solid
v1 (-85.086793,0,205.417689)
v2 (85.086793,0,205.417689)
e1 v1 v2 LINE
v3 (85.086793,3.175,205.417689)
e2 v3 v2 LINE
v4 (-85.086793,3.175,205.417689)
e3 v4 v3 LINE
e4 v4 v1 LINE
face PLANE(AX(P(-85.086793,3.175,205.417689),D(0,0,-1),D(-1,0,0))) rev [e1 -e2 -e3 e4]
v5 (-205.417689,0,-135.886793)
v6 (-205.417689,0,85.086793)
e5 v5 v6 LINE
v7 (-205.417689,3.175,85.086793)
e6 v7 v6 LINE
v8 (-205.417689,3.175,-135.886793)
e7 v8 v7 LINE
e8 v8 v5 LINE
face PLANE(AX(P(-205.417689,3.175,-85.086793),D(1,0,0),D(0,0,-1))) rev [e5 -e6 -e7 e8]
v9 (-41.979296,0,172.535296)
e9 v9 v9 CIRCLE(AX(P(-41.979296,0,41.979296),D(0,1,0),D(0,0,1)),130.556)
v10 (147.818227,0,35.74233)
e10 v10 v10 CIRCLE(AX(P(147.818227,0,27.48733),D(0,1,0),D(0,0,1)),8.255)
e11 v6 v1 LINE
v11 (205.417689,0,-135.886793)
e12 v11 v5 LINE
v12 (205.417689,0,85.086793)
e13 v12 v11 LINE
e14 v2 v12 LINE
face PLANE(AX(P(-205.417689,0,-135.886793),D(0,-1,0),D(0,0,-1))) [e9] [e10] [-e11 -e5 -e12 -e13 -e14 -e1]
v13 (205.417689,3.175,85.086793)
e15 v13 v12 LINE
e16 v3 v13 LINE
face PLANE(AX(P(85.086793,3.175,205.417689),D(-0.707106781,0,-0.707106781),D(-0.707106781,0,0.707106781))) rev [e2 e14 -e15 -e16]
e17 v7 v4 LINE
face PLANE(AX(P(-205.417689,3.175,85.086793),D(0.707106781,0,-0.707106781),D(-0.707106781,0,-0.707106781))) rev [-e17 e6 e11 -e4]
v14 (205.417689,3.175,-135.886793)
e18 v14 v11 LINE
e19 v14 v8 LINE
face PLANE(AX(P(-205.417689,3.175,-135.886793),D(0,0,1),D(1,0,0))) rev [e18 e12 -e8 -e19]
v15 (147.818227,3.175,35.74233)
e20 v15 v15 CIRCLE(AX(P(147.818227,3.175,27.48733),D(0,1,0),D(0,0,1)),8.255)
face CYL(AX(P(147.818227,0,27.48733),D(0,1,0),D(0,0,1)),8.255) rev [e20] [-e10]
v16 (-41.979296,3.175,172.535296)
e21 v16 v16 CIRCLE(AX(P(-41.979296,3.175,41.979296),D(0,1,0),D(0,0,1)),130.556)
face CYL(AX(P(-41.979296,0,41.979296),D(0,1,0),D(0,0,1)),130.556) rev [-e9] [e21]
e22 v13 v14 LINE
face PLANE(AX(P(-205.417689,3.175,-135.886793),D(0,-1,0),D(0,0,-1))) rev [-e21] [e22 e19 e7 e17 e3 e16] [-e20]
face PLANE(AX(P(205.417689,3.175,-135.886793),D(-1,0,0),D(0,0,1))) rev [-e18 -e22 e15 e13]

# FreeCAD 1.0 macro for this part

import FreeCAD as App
import Part
import Sketcher
from FreeCAD import Vector
Q = App.Units.Quantity

doc = App.newDocument("Part")
body = doc.addObject("PartDesign::Body", "Body")

sketch1 = body.newObject("Sketcher::SketchObject", "Sketch")
sketch1.AttachmentSupport = (doc.getObject("XZ_Plane"), [""])
sketch1.MapMode = "FlatFace"
sketch1.addGeometry(Part.LineSegment(Vector(-205.417689, 85.086793, 0), Vector(-85.086793, 205.417689, 0)), False)
sketch1.addGeometry(Part.LineSegment(Vector(-85.086793, 205.417689, 0), Vector(85.086793, 205.417689, 0)), False)
sketch1.addGeometry(Part.LineSegment(Vector(85.086793, 205.417689, 0), Vector(205.417689, 85.086793, 0)), False)
sketch1.addGeometry(Part.LineSegment(Vector(205.417689, 85.086793, 0), Vector(205.417689, -135.886793, 0)), False)
sketch1.addGeometry(Part.LineSegment(Vector(205.417689, -135.886793, 0), Vector(-205.417689, -135.886793, 0)), False)
sketch1.addGeometry(Part.LineSegment(Vector(-205.417689, -135.886793, 0), Vector(-205.417689, 85.086793, 0)), False)
sketch1.addConstraint(Sketcher.Constraint("Coincident", 0, 2, 1, 1))
sketch1.addConstraint(Sketcher.Constraint("Coincident", 1, 2, 2, 1))
sketch1.addConstraint(Sketcher.Constraint("Coincident", 2, 2, 3, 1))
sketch1.addConstraint(Sketcher.Constraint("Coincident", 3, 2, 4, 1))
sketch1.addConstraint(Sketcher.Constraint("Coincident", 4, 2, 5, 1))
sketch1.addConstraint(Sketcher.Constraint("Coincident", 5, 2, 0, 1))
sketch1.addConstraint(Sketcher.Constraint("Horizontal", 1))
sketch1.addConstraint(Sketcher.Constraint("Vertical", 3))
sketch1.addConstraint(Sketcher.Constraint("Horizontal", 4))
sketch1.addConstraint(Sketcher.Constraint("Vertical", 5))
sketch1.addConstraint(Sketcher.Constraint("Symmetric", 2, 2, 5, 2, -2))
sketch1.addConstraint(Sketcher.Constraint("Perpendicular", 0, 2))
sketch1.addConstraint(Sketcher.Constraint("Equal", 0, 2))
sketch1.addConstraint(Sketcher.Constraint("DistanceX", 4, 2, 4, 1, 410.835379))
sketch1.addConstraint(Sketcher.Constraint("DistanceX", 1, 1, 1, 2, 170.173586))
sketch1.addConstraint(Sketcher.Constraint("DistanceY", 3, 2, 3, 1, 220.973586))
sketch1.addConstraint(Sketcher.Constraint("DistanceY", -1, 1, 0, 2, 205.417689))
pad1 = body.newObject("PartDesign::Pad", "Pad")
pad1.Profile = sketch1
pad1.Length = Q("0.125 in")
pad1.Reversed = True

sketch2 = body.newObject("Sketcher::SketchObject", "Sketch001")
sketch2.AttachmentSupport = (doc.getObject("XZ_Plane"), [""])
sketch2.MapMode = "FlatFace"
sketch2.AttachmentOffset = App.Placement(Vector(0, 0, -0.125 * 25.4), App.Rotation())
sketch2.addGeometry(Part.Circle(Vector(-41.979296, 41.979296, 0), Vector(0, 0, 1), 130.556), False)
sketch2.addConstraint(Sketcher.Constraint("Diameter", 0, Q("10.28 in")))
sketch2.addConstraint(Sketcher.Constraint("DistanceX", 0, 3, -1, 1, 41.979296))
sketch2.addConstraint(Sketcher.Constraint("DistanceY", -1, 1, 0, 3, 41.979296))
pocket1 = body.newObject("PartDesign::Pocket", "Pocket")
pocket1.Profile = sketch2
pocket1.Type = "ThroughAll"
pocket1.Reversed = True

sketch3 = body.newObject("Sketcher::SketchObject", "Sketch002")
sketch3.AttachmentSupport = (doc.getObject("XZ_Plane"), [""])
sketch3.MapMode = "FlatFace"
sketch3.AttachmentOffset = App.Placement(Vector(0, 0, -0.125 * 25.4), App.Rotation())
sketch3.addGeometry(Part.Circle(Vector(147.818227, 27.48733, 0), Vector(0, 0, 1), 8.255), False)
sketch3.addConstraint(Sketcher.Constraint("Diameter", 0, Q("0.65 in")))
sketch3.addConstraint(Sketcher.Constraint("DistanceY", -1, 1, 0, 3, 27.48733))
sketch3.addConstraint(Sketcher.Constraint("DistanceX", -1, 1, 0, 3, 147.818227))
pocket2 = body.newObject("PartDesign::Pocket", "Pocket001")
pocket2.Profile = sketch3
pocket2.Type = "ThroughAll"
pocket2.Reversed = True

doc.recompute()
